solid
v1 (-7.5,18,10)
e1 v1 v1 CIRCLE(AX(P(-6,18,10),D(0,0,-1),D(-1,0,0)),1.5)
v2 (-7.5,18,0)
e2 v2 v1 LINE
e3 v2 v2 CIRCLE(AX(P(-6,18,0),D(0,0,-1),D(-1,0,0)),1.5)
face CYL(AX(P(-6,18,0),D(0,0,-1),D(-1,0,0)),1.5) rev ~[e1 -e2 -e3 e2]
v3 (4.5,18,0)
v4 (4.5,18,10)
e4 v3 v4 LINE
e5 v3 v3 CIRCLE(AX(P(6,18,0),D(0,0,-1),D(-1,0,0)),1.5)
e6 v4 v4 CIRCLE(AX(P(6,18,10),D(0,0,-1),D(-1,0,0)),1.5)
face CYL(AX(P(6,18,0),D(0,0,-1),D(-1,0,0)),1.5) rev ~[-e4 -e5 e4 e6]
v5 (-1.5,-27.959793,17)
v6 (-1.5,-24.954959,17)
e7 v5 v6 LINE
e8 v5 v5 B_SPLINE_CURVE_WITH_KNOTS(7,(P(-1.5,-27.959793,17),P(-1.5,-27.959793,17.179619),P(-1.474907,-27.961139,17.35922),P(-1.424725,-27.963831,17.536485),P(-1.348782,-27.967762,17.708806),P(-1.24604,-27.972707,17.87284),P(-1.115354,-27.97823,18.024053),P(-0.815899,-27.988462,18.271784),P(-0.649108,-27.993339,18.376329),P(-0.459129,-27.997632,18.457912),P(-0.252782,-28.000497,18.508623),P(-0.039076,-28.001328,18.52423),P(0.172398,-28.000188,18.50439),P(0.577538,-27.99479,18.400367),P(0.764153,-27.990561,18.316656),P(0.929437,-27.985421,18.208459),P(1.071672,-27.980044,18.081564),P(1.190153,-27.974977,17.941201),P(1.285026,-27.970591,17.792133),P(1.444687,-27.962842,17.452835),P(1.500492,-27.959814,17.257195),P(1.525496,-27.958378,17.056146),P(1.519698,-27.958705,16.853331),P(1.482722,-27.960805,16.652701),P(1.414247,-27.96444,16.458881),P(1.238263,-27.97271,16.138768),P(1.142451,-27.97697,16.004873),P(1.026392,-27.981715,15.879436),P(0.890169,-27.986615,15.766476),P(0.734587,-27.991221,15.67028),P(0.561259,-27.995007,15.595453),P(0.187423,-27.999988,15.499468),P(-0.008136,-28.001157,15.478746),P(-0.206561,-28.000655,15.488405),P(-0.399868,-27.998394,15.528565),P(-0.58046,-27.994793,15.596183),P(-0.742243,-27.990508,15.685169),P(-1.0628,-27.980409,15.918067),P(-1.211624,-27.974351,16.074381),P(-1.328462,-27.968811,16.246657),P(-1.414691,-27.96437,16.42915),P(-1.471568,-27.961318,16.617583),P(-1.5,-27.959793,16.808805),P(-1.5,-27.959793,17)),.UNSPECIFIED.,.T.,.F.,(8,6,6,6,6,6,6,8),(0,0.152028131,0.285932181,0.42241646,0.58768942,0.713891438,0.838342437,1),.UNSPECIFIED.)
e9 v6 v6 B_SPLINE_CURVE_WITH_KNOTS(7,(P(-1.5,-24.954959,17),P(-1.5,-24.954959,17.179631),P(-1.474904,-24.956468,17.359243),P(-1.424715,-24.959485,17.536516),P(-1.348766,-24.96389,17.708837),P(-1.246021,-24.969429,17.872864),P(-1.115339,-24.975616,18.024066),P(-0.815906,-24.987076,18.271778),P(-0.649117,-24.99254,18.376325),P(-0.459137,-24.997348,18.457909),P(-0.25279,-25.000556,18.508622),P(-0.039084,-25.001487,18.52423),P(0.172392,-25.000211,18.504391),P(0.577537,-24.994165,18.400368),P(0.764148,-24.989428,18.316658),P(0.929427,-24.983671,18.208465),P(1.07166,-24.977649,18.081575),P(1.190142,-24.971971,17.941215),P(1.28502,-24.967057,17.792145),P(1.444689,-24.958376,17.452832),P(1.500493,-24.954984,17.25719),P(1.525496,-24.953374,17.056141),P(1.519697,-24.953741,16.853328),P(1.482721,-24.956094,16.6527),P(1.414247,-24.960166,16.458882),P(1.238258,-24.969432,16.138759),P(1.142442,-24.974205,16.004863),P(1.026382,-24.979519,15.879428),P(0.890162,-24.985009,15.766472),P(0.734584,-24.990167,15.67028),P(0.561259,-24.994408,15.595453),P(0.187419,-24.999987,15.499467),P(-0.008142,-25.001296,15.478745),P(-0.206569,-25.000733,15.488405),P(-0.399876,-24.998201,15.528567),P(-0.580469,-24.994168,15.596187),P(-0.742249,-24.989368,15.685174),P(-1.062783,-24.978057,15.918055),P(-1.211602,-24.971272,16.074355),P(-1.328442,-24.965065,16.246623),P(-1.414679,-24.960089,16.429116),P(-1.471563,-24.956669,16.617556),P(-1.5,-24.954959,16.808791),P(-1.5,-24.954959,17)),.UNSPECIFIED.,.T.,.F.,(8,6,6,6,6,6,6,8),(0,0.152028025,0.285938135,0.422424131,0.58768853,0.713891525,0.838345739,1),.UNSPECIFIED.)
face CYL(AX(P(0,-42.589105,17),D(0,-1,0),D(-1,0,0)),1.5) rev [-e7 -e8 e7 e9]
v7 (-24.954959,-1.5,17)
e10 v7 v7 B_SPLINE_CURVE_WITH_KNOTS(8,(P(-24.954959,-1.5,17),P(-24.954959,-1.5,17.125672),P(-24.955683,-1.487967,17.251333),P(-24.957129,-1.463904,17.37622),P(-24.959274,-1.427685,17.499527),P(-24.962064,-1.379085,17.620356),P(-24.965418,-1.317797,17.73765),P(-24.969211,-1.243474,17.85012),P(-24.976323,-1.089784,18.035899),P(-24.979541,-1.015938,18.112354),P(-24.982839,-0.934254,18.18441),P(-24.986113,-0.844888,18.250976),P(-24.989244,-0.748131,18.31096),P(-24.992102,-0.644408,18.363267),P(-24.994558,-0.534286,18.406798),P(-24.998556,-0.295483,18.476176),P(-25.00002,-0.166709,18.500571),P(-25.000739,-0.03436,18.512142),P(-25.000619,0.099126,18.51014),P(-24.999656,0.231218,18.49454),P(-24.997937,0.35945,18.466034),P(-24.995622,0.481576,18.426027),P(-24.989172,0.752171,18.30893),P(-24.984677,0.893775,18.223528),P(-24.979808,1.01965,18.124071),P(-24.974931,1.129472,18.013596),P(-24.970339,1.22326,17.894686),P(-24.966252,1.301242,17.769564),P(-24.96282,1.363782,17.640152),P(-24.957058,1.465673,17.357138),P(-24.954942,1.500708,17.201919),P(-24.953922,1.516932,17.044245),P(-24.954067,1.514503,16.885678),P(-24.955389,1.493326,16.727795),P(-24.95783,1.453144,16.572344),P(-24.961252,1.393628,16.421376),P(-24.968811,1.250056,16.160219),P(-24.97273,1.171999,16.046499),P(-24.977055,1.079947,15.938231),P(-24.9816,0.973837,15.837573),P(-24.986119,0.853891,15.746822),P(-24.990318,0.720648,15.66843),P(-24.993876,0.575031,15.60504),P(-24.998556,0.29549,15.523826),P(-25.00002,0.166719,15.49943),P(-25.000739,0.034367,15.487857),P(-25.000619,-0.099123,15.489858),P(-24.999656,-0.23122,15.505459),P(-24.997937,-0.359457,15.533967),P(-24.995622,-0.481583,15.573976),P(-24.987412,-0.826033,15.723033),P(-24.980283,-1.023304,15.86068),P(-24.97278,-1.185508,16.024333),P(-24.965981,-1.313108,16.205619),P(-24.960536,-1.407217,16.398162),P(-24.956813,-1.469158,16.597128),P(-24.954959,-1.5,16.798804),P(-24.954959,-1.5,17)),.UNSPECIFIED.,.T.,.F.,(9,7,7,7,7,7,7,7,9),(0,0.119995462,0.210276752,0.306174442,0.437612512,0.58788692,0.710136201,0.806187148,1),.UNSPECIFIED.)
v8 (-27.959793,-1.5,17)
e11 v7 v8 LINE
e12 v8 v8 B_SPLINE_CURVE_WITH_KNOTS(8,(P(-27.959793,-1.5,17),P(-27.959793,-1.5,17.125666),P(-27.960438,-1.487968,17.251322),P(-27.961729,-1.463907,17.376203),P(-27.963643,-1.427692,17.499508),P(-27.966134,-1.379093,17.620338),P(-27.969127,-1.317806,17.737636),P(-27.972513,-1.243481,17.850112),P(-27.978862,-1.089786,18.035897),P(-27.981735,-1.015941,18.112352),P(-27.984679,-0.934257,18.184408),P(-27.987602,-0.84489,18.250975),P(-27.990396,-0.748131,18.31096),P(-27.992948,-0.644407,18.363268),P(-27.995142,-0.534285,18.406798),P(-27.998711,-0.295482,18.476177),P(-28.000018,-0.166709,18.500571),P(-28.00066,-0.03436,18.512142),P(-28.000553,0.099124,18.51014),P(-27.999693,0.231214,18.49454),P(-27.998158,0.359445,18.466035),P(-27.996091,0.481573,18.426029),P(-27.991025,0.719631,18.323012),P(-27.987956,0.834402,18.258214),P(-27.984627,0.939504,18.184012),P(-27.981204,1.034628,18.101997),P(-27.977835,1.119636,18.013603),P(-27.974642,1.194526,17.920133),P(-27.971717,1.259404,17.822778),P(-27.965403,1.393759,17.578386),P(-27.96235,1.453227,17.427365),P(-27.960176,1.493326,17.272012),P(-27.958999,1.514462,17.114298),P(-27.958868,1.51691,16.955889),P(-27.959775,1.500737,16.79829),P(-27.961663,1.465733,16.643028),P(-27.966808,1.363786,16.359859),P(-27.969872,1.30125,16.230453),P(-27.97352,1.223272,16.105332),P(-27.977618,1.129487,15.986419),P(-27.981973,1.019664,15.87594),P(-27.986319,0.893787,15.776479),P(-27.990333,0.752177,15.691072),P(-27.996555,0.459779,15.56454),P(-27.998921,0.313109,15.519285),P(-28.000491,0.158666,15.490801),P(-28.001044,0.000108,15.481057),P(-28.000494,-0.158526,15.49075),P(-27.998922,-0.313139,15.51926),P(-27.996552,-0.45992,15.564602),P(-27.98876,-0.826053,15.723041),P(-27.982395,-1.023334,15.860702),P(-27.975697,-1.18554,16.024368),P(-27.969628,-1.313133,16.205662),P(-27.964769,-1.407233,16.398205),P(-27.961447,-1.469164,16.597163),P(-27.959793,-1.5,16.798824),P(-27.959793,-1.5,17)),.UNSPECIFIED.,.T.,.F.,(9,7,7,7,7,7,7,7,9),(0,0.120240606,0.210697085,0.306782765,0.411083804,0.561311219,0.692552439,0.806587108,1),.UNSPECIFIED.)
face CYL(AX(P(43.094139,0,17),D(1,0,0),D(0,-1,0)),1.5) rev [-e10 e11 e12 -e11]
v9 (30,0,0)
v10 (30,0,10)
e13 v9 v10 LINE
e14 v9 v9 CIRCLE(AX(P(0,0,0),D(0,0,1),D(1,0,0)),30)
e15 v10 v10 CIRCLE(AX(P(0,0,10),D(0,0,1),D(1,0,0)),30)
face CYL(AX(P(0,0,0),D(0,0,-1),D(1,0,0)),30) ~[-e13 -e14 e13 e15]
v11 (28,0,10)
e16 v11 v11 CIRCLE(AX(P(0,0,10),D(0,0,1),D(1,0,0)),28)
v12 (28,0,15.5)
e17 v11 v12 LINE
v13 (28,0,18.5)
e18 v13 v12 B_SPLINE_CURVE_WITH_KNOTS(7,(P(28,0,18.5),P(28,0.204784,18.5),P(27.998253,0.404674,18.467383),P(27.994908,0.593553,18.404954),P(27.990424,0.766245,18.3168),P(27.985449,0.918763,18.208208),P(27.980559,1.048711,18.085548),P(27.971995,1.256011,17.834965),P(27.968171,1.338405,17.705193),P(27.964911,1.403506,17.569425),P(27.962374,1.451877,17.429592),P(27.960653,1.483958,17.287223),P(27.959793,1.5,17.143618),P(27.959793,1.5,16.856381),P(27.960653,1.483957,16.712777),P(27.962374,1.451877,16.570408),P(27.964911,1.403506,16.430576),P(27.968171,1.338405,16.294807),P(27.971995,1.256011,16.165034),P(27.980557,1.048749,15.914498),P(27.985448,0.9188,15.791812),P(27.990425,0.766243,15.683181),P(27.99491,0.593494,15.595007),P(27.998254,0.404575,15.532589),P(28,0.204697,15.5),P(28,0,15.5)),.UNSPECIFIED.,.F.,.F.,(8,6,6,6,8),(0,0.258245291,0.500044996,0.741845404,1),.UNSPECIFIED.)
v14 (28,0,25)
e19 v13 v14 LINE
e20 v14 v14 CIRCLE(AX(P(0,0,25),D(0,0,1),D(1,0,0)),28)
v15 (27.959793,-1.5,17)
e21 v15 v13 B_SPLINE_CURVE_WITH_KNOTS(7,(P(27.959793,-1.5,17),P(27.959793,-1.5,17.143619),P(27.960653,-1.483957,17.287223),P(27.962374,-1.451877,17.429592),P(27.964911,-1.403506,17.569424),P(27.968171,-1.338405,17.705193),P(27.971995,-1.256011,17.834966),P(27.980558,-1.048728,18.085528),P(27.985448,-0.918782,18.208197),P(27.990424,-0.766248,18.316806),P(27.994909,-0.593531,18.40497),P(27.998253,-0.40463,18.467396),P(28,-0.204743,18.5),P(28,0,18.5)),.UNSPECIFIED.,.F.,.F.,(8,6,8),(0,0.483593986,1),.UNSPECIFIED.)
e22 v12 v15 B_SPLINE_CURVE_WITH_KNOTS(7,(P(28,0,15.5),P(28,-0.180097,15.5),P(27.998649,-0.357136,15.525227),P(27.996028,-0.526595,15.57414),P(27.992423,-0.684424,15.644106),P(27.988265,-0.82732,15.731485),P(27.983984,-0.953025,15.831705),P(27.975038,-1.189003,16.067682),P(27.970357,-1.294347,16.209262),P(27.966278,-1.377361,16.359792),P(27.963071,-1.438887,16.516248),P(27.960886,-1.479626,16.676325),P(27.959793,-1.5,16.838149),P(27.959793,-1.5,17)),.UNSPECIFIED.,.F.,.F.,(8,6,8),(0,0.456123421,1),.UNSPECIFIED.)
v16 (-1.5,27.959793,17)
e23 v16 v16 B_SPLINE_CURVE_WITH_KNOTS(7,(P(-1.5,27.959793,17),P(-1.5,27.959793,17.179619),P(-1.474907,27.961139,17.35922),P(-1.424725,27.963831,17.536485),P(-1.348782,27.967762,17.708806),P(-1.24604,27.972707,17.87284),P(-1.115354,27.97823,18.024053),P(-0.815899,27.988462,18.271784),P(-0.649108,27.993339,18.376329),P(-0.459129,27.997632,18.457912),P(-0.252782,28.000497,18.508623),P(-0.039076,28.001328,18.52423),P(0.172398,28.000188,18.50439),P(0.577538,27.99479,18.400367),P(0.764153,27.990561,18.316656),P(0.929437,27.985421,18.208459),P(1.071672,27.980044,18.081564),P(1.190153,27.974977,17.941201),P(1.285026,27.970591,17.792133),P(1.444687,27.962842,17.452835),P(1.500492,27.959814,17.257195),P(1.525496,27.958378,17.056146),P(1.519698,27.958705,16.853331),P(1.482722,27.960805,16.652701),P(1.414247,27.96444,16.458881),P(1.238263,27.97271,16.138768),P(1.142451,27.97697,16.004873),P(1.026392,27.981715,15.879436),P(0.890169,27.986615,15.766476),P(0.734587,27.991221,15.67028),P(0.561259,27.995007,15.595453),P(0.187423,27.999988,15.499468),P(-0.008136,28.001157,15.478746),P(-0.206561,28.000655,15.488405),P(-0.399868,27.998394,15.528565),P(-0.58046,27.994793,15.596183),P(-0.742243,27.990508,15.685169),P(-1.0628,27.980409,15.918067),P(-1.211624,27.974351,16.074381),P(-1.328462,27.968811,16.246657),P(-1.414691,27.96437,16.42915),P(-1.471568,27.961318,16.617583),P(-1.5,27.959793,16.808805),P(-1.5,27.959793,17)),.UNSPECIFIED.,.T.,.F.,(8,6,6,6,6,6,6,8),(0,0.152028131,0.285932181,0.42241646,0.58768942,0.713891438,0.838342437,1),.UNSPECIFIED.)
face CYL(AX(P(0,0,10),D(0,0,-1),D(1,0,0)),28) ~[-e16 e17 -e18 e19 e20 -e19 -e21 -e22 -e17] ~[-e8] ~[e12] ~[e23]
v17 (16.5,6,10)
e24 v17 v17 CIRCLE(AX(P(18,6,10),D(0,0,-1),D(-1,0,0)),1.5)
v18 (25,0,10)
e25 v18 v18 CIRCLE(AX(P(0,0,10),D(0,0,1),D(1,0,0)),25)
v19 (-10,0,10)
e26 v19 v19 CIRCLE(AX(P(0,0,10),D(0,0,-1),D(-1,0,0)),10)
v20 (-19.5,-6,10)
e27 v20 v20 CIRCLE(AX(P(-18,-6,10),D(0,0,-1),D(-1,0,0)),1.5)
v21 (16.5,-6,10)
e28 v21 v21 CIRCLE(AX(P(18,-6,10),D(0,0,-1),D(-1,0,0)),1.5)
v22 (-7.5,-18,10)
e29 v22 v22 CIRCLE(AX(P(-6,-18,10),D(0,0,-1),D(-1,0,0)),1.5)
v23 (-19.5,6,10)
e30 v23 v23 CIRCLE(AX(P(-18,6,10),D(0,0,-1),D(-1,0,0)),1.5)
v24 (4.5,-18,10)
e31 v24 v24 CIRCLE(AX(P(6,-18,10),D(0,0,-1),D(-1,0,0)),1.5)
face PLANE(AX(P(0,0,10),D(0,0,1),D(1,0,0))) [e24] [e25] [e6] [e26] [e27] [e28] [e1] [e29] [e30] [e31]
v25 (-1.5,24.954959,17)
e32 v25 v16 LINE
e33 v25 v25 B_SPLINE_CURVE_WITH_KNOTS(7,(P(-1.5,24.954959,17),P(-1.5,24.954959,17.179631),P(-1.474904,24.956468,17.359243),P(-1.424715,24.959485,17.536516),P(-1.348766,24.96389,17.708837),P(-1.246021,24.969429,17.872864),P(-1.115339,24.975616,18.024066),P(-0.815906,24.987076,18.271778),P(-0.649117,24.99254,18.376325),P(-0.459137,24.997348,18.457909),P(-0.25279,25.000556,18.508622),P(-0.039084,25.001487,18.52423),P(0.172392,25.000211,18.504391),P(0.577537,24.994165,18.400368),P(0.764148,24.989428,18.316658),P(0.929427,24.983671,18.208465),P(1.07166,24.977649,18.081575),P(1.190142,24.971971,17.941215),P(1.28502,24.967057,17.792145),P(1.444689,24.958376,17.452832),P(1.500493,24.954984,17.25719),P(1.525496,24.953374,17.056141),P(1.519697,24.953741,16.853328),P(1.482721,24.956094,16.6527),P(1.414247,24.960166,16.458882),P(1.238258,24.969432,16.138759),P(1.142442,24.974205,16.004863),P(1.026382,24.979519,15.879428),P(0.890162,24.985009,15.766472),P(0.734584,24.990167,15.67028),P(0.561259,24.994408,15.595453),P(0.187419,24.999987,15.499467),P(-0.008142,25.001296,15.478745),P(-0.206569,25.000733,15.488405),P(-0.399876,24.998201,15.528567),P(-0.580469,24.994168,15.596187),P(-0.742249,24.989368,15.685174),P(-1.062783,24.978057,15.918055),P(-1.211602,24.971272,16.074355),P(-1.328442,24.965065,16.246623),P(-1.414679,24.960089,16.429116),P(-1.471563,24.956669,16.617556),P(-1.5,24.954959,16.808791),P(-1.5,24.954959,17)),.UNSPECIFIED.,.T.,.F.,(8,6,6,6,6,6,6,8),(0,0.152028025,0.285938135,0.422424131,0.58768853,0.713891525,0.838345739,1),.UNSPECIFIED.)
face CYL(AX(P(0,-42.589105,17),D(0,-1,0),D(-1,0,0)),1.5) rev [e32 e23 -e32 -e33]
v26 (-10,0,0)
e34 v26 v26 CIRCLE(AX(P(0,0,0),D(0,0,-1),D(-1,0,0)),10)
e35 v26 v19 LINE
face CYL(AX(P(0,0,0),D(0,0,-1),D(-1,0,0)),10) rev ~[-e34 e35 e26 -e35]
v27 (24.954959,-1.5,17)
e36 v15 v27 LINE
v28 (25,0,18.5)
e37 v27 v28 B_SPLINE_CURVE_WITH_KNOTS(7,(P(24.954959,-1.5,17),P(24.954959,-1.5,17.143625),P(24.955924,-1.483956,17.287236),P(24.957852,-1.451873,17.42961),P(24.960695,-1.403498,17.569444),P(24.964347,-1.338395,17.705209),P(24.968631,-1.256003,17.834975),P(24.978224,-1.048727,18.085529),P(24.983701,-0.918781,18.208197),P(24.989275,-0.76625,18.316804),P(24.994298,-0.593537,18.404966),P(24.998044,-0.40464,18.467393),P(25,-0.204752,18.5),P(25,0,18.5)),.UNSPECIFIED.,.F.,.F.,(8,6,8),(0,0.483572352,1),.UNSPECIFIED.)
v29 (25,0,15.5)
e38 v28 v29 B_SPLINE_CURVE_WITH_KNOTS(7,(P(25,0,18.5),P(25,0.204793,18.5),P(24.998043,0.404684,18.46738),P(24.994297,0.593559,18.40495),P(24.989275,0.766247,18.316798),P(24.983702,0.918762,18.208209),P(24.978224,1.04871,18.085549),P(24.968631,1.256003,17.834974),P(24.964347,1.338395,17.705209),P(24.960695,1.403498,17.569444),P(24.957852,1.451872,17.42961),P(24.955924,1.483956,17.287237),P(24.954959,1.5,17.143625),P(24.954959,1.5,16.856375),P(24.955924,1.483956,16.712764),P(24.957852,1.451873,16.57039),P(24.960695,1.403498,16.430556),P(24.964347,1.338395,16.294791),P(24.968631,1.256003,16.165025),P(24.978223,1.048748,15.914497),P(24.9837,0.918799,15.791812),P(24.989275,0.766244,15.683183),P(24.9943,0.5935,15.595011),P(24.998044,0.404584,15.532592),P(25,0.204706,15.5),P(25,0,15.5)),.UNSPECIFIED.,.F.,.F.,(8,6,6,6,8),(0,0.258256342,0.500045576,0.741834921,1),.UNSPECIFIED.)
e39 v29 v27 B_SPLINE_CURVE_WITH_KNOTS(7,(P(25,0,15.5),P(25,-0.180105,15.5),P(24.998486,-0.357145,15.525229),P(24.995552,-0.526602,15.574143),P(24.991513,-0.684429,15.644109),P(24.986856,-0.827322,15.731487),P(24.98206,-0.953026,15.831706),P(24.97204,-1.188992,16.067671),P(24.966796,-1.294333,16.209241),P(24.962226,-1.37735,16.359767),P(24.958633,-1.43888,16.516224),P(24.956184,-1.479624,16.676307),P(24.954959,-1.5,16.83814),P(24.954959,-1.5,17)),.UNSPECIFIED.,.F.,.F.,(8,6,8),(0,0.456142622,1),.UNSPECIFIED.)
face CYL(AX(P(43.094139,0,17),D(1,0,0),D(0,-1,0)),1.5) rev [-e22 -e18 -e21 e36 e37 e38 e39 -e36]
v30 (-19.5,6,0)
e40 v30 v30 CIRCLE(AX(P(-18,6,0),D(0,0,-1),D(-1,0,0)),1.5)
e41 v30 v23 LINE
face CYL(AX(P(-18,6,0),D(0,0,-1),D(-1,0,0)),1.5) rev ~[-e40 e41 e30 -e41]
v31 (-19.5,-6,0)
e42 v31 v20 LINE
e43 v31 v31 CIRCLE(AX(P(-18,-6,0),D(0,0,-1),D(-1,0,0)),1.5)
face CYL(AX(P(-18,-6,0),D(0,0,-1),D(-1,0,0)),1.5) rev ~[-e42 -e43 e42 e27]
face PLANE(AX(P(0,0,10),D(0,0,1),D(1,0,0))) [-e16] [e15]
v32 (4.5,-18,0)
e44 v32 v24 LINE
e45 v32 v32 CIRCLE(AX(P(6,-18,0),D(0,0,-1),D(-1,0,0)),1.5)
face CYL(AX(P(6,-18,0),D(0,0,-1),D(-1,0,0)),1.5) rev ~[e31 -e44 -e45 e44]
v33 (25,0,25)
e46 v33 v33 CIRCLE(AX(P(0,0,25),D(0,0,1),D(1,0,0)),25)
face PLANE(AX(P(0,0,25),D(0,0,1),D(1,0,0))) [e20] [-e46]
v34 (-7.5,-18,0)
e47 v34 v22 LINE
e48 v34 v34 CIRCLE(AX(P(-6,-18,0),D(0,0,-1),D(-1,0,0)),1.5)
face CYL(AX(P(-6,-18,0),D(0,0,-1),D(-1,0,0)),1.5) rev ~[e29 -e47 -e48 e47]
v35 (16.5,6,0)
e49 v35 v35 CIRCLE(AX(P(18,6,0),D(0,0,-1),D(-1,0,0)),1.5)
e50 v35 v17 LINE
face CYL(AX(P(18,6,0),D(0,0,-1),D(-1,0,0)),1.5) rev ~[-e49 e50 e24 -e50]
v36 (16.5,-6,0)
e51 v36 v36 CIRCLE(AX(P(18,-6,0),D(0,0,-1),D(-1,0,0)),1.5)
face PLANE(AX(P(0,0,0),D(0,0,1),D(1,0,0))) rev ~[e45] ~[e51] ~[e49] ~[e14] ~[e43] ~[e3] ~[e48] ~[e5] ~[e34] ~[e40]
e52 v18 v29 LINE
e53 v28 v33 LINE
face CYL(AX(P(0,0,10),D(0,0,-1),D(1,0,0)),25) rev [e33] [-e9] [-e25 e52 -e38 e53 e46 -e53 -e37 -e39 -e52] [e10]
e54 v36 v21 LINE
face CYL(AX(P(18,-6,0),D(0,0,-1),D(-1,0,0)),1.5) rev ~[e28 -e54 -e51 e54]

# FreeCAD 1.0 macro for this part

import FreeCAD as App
import Part
import Sketcher
Q = App.Units.Quantity

doc = App.newDocument("Part")
body = doc.addObject("PartDesign::Body", "Body")

sketch1 = doc.addObject("Sketcher::SketchObject", "Sketch")
body.addObject(sketch1)
sketch1.AttachmentSupport = (doc.XY_Plane, [""])
sketch1.MapMode = "FlatFace"
sketch1.addGeometry(Part.Circle(App.Vector(0, 0, 0), App.Vector(0, 0, 1), 30), False)
sketch1.addConstraint([
    Sketcher.Constraint("Coincident", 0, 3, -1, 1),
    Sketcher.Constraint("Diameter", 0, Q("60 mm")),
])
pad1 = doc.addObject("PartDesign::Pad", "Pad")
body.addObject(pad1)
pad1.Profile = sketch1
pad1.Length = 10

sketch2 = doc.addObject("Sketcher::SketchObject", "Sketch001")
body.addObject(sketch2)
sketch2.AttachmentSupport = (doc.XY_Plane, [""])
sketch2.MapMode = "FlatFace"
sketch2.AttachmentOffset = App.Placement(App.Vector(0, 0, 10), App.Rotation())
sketch2.addGeometry([
    Part.Circle(App.Vector(0, 0, 0), App.Vector(0, 0, 1), 28),
    Part.Circle(App.Vector(0, 0, 0), App.Vector(0, 0, 1), 25),
], False)
sketch2.addConstraint([
    Sketcher.Constraint("Coincident", 0, 3, -1, 1),
    Sketcher.Constraint("Coincident", 1, 3, -1, 1),
    Sketcher.Constraint("Diameter", 0, Q("56 mm")),
    Sketcher.Constraint("Diameter", 1, Q("50 mm")),
])
pad2 = doc.addObject("PartDesign::Pad", "Pad001")
body.addObject(pad2)
pad2.Profile = sketch2
pad2.Length = 15

sketch3 = doc.addObject("Sketcher::SketchObject", "Sketch002")
body.addObject(sketch3)
sketch3.AttachmentSupport = (doc.XZ_Plane, [""])
sketch3.MapMode = "FlatFace"
sketch3.AttachmentOffset = App.Placement(App.Vector(0, 0, -30), App.Rotation())
sketch3.addGeometry(Part.Circle(App.Vector(0, 17, 0), App.Vector(0, 0, 1), 1.5), False)
sketch3.addConstraint([
    Sketcher.Constraint("PointOnObject", 0, 3, -2),
    Sketcher.Constraint("Diameter", 0, Q("3 mm")),
    Sketcher.Constraint("DistanceY", -1, 1, 0, 3, Q("17 mm")),
])
pocket1 = doc.addObject("PartDesign::Pocket", "Pocket")
body.addObject(pocket1)
pocket1.Profile = sketch3
pocket1.Type = "ThroughAll"
pocket1.Midplane = True

sketch4 = doc.addObject("Sketcher::SketchObject", "Sketch003")
body.addObject(sketch4)
sketch4.AttachmentSupport = (doc.YZ_Plane, [""])
sketch4.MapMode = "FlatFace"
sketch4.AttachmentOffset = App.Placement(App.Vector(0, 0, -27), App.Rotation())
sketch4.addGeometry(Part.Circle(App.Vector(0, 17, 0), App.Vector(0, 0, 1), 1.5), False)
sketch4.addConstraint([
    Sketcher.Constraint("PointOnObject", 0, 3, -2),
    Sketcher.Constraint("Diameter", 0, Q("3 mm")),
    Sketcher.Constraint("DistanceY", -1, 1, 0, 3, Q("17 mm")),
])
pocket2 = doc.addObject("PartDesign::Pocket", "Pocket001")
body.addObject(pocket2)
pocket2.Profile = sketch4
pocket2.Type = "ThroughAll"
pocket2.Midplane = True

sketch5 = doc.addObject("Sketcher::SketchObject", "Sketch004")
body.addObject(sketch5)
sketch5.AttachmentSupport = (doc.XY_Plane, [""])
sketch5.MapMode = "FlatFace"
sketch5.addGeometry([
    Part.Circle(App.Vector(6, -18, 0), App.Vector(0, 0, 1), 1.5),
    Part.Circle(App.Vector(-6, -18, 0), App.Vector(0, 0, 1), 1.5),
    Part.Circle(App.Vector(-18, -6, 0), App.Vector(0, 0, 1), 1.5),
    Part.Circle(App.Vector(-18, 6, 0), App.Vector(0, 0, 1), 1.5),
    Part.Circle(App.Vector(-6, 18, 0), App.Vector(0, 0, 1), 1.5),
    Part.Circle(App.Vector(6, 18, 0), App.Vector(0, 0, 1), 1.5),
    Part.Circle(App.Vector(18, 6, 0), App.Vector(0, 0, 1), 1.5),
    Part.Circle(App.Vector(18, -6, 0), App.Vector(0, 0, 1), 1.5),
], False)
sketch5.addConstraint([
    Sketcher.Constraint("Equal", 0, 1),
    Sketcher.Constraint("Equal", 1, 2),
    Sketcher.Constraint("Equal", 2, 3),
    Sketcher.Constraint("Equal", 3, 4),
    Sketcher.Constraint("Equal", 4, 5),
    Sketcher.Constraint("Equal", 5, 6),
    Sketcher.Constraint("Equal", 6, 7),
    Sketcher.Constraint("Symmetric", 0, 3, 4, 3, -1, 1),
    Sketcher.Constraint("Symmetric", 1, 3, 5, 3, -1, 1),
    Sketcher.Constraint("Symmetric", 2, 3, 6, 3, -1, 1),
    Sketcher.Constraint("Symmetric", 3, 3, 7, 3, -1, 1),
    Sketcher.Constraint("Symmetric", 0, 3, 1, 3, -2),
    Sketcher.Constraint("Symmetric", 3, 3, 6, 3, -2),
    Sketcher.Constraint("Diameter", 0, Q("3 mm")),
    Sketcher.Constraint("DistanceX", -1, 1, 0, 3, Q("6 mm")),
    Sketcher.Constraint("DistanceY", 0, 3, -1, 1, Q("18 mm")),
    Sketcher.Constraint("DistanceX", 2, 3, -1, 1, Q("18 mm")),
    Sketcher.Constraint("DistanceY", 2, 3, -1, 1, Q("6 mm")),
])
pocket3 = doc.addObject("PartDesign::Pocket", "Pocket002")
body.addObject(pocket3)
pocket3.Profile = sketch5
pocket3.Length = 15
pocket3.Reversed = True

sketch6 = doc.addObject("Sketcher::SketchObject", "Sketch005")
body.addObject(sketch6)
sketch6.AttachmentSupport = (doc.XY_Plane, [""])
sketch6.MapMode = "FlatFace"
sketch6.addGeometry(Part.Circle(App.Vector(0, 0, 0), App.Vector(0, 0, 1), 10), False)
sketch6.addConstraint([
    Sketcher.Constraint("Coincident", 0, 3, -1, 1),
    Sketcher.Constraint("Diameter", 0, Q("20 mm")),
])
pocket4 = doc.addObject("PartDesign::Pocket", "Pocket003")
body.addObject(pocket4)
pocket4.Profile = sketch6
pocket4.Length = 10
pocket4.Reversed = True

doc.recompute()
